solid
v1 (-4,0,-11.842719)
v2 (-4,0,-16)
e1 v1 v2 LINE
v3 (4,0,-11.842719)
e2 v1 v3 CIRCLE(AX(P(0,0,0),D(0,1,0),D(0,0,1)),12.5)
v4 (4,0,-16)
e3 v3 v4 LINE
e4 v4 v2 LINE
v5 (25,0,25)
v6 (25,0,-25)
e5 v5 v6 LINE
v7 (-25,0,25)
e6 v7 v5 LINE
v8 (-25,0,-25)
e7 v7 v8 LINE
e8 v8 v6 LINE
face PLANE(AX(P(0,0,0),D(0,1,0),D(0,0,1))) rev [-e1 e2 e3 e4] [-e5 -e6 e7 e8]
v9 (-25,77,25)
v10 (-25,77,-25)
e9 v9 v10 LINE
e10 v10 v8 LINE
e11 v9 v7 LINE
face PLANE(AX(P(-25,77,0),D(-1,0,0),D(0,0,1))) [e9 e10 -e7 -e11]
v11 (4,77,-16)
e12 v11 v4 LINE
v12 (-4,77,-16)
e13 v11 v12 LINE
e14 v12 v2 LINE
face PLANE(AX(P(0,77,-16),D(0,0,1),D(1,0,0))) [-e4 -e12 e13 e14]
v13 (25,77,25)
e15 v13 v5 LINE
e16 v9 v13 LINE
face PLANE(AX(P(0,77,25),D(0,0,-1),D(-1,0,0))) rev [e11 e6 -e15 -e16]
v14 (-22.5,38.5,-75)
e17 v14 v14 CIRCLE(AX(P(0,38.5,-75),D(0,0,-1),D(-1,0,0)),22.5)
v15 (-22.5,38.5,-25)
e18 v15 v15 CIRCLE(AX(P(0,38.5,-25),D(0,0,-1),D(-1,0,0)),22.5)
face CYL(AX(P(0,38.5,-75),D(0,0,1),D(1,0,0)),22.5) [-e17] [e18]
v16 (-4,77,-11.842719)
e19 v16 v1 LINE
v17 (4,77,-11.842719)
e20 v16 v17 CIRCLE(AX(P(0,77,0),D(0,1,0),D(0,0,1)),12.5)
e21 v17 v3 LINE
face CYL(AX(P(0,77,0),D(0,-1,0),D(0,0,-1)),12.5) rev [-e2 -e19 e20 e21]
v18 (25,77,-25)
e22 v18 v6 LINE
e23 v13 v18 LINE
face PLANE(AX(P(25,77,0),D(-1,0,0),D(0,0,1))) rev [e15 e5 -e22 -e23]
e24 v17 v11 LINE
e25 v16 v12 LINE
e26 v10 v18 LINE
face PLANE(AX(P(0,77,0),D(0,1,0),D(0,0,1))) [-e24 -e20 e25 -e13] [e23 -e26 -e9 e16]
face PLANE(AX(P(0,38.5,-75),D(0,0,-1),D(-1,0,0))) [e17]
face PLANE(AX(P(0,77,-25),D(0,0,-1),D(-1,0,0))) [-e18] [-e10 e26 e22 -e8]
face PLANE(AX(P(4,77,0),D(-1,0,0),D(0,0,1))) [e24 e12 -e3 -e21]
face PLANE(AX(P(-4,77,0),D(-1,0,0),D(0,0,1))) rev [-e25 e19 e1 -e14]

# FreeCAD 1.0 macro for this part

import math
import FreeCAD as App
import Part
import Sketcher
from FreeCAD import Vector


def add_polygon(sketch, points):
    """Adds a closed chain of lines whose ends are joined by coincident constraints."""
    first, n = sketch.GeometryCount, len(points)
    for a, b in zip(points, points[1:] + points[:1]):
        sketch.addGeometry(Part.LineSegment(App.Vector(*a, 0), App.Vector(*b, 0)), False)
    for i in range(n):
        sketch.addConstraint(Sketcher.Constraint("Coincident", first + i, 2, first + (i + 1) % n, 1))

doc = App.newDocument("Part")
params = doc.addObject("Spreadsheet::Sheet", "Params")
for row, (alias, value) in enumerate([
    ("sketch1_radius", "12.5 mm"),
    ("sketch1_width", "50 mm"),
    ("sketch1_width2", "8 mm"),
    ("pad1_length", "77 mm"),
    ("sketch2_diameter", "45 mm"),
    ("pad2_length", "50 mm"),
], start=1):
    params.set(f"A{row}", alias)
    params.set(f"B{row}", "=" + value)
    params.setAlias(f"B{row}", alias)

body = doc.addObject("PartDesign::Body", "Body")

sketch1 = body.newObject("Sketcher::SketchObject", "Sketch")
sketch1.AttachmentSupport = (doc.getObject("XZ_Plane"), [""])
sketch1.MapMode = "FlatFace"
add_polygon(sketch1, [(-25, -25), (-25, 25), (25, 25), (25, -25)])
sketch1.addGeometry(Part.LineSegment(Vector(-4, -16, 0), Vector(4, -16, 0)), False)
sketch1.addGeometry(Part.LineSegment(Vector(4, -16, 0), Vector(4, -11.8, 0)), False)
sketch1.addGeometry(Part.ArcOfCircle(Part.Circle(Vector(0, 0, 0), Vector(0, 0, 1), 12.5), math.radians(-71), math.radians(0)), False)
sketch1.addGeometry(Part.ArcOfCircle(Part.Circle(Vector(0, 0, 0), Vector(0, 0, 1), 12.5), math.radians(0), math.radians(251)), False)
sketch1.addGeometry(Part.LineSegment(Vector(-4, -11.8, 0), Vector(-4, -16, 0)), False)
sketch1.addConstraint([
    Sketcher.Constraint("Coincident", 4, 2, 5, 1),
    Sketcher.Constraint("Coincident", 5, 2, 6, 1),
    Sketcher.Constraint("Tangent", 6, 2, 7, 1),
    Sketcher.Constraint("Coincident", 7, 2, 8, 1),
    Sketcher.Constraint("Coincident", 8, 2, 4, 1),
    Sketcher.Constraint("Vertical", 0),
    Sketcher.Constraint("Horizontal", 1),
    Sketcher.Constraint("Vertical", 2),
    Sketcher.Constraint("Horizontal", 3),
    Sketcher.Constraint("Horizontal", 4),
    Sketcher.Constraint("Vertical", 5),
    Sketcher.Constraint("Vertical", 8),
    Sketcher.Constraint("Coincident", 6, 3, -1, 1),
    Sketcher.Constraint("Equal", 6, 7),
    Sketcher.Constraint("Symmetric", 0, 2, 2, 2, -1, 1),
    Sketcher.Constraint("PointOnObject", 6, 2, -1),
    Sketcher.Constraint("Horizontal", 5, 2, 7, 2),
    Sketcher.Constraint("Equal", 3, 0),
    Sketcher.Constraint("Radius", 6, 12.5),
    Sketcher.Constraint("DistanceX", 1, 1, 1, 2, 50.0),
    Sketcher.Constraint("DistanceX", 4, 1, 4, 2, 8.0),
    Sketcher.Constraint("DistanceY", 4, 2, -1, 1, 16.0),
])
sketch1.setExpression("Constraints[22]", "Params.sketch1_radius")
sketch1.setExpression("Constraints[23]", "Params.sketch1_width")
sketch1.setExpression("Constraints[24]", "Params.sketch1_width2")
pad1 = body.newObject("PartDesign::Pad", "Pad")
pad1.Profile = sketch1
pad1.setExpression("Length", "Params.pad1_length")
pad1.Reversed = True

sketch2 = body.newObject("Sketcher::SketchObject", "Sketch001")
sketch2.AttachmentSupport = (doc.getObject("XY_Plane"), [""])
sketch2.MapMode = "FlatFace"
sketch2.AttachmentOffset = App.Placement(Vector(0, 0, -25), App.Rotation())
sketch2.addGeometry(Part.Circle(Vector(0, 38, 0), Vector(0, 0, 1), 22), False)
sketch2.addConstraint([
    Sketcher.Constraint("PointOnObject", 0, 3, -2),
    Sketcher.Constraint("Diameter", 0, 45.0),
    Sketcher.Constraint("DistanceY", -1, 1, 0, 3, 38.5),
])
sketch2.setExpression("Constraints[1]", "Params.sketch2_diameter")
pad2 = body.newObject("PartDesign::Pad", "Pad001")
pad2.Profile = sketch2
pad2.setExpression("Length", "Params.pad2_length")
pad2.Reversed = True

doc.recompute()
